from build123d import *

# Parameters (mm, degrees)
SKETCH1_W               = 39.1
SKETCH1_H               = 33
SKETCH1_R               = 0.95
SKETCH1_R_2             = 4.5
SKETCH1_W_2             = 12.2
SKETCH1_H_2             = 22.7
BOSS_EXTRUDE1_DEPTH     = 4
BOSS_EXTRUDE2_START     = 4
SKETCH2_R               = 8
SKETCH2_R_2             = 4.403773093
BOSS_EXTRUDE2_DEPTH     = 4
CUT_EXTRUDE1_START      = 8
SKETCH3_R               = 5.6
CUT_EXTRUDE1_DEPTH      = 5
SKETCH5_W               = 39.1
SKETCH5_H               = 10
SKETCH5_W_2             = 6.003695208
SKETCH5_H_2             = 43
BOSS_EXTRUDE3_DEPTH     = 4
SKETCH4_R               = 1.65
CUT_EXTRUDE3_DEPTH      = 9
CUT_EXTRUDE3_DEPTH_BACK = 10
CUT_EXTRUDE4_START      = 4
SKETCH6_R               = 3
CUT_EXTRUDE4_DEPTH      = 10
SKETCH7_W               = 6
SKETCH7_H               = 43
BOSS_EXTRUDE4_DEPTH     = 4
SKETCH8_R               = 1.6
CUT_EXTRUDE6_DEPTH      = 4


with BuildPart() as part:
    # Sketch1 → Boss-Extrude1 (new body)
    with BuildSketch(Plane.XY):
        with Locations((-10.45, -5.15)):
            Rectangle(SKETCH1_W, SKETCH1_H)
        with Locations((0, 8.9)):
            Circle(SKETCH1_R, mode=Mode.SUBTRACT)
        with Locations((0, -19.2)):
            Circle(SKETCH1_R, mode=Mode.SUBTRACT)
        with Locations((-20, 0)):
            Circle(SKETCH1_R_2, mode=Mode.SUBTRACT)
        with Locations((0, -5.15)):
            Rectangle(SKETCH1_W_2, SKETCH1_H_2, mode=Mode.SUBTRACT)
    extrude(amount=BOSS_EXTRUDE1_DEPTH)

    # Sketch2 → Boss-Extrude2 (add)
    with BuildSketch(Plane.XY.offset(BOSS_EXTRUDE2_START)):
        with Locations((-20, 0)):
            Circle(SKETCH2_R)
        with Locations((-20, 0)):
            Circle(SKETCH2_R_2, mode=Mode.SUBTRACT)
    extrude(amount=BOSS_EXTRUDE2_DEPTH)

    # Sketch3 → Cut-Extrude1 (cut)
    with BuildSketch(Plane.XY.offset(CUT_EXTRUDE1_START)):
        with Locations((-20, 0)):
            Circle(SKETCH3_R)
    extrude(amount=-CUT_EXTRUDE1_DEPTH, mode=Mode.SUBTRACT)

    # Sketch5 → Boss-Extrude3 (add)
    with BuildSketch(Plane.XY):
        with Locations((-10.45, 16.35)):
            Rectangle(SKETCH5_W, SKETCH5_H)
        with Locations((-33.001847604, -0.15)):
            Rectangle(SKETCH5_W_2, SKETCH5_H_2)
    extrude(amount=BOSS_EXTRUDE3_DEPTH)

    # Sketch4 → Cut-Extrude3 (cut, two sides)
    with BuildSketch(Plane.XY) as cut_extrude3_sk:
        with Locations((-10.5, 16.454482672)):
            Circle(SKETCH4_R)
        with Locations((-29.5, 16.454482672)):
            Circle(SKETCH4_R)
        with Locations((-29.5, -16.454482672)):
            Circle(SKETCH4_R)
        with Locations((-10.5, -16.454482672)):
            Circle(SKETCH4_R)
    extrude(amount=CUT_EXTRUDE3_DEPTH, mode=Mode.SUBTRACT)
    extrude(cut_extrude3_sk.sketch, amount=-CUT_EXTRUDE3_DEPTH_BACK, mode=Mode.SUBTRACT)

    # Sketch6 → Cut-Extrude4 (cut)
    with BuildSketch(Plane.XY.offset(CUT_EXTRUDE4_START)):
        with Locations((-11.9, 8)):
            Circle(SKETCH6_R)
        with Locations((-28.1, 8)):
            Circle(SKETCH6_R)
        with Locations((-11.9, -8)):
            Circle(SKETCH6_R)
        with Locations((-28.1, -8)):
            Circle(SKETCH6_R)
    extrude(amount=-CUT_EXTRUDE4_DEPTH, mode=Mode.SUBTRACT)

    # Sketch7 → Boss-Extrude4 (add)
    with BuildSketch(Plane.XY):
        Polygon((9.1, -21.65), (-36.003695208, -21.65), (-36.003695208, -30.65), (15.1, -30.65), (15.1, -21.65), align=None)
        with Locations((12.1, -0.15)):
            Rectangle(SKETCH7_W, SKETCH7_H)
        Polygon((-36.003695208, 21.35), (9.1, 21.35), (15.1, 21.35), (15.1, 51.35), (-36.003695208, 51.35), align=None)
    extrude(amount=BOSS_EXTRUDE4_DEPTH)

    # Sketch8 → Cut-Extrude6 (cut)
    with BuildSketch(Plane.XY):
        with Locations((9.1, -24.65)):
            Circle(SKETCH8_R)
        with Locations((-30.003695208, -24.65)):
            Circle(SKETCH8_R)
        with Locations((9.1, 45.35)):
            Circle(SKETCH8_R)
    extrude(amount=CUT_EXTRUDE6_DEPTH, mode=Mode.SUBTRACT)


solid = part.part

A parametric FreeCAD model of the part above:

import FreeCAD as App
import Part
import Sketcher
from FreeCAD import Vector

doc = App.newDocument("Part")
body = doc.addObject("PartDesign::Body", "Body")

sketch1 = doc.addObject("Sketcher::SketchObject", "Sketch")
body.addObject(sketch1)
sketch1.AttachmentSupport = (doc.XY_Plane, [""])
sketch1.MapMode = "FlatFace"
sketch1.addGeometry([
    Part.LineSegment(Vector(-30, 11.3, 0), Vector(-30, -21.6, 0)),
    Part.LineSegment(Vector(-30, -21.6, 0), Vector(9.1, -21.6, 0)),
    Part.LineSegment(Vector(9.1, -21.6, 0), Vector(9.1, 11.3, 0)),
    Part.LineSegment(Vector(9.1, 11.3, 0), Vector(-30, 11.3, 0)),
    Part.Circle(Vector(0, -19.2, 0), Vector(0, 0, 1), 0.9),
    Part.LineSegment(Vector(6.1, -16.5, 0), Vector(-6.1, -16.5, 0)),
    Part.LineSegment(Vector(-6.1, -16.5, 0), Vector(-6.1, 6.2, 0)),
    Part.LineSegment(Vector(-6.1, 6.2, 0), Vector(6.1, 6.2, 0)),
    Part.LineSegment(Vector(6.1, 6.2, 0), Vector(6.1, -16.5, 0)),
    Part.Circle(Vector(-20, 0, 0), Vector(0, 0, 1), 4.5),
    Part.Circle(Vector(0, 8.9, 0), Vector(0, 0, 1), 0.9),
], False)
sketch1.addConstraint([
    Sketcher.Constraint("Coincident", 0, 2, 1, 1),
    Sketcher.Constraint("Coincident", 1, 2, 2, 1),
    Sketcher.Constraint("Coincident", 2, 2, 3, 1),
    Sketcher.Constraint("Coincident", 3, 2, 0, 1),
    Sketcher.Constraint("Coincident", 5, 2, 6, 1),
    Sketcher.Constraint("Coincident", 6, 2, 7, 1),
    Sketcher.Constraint("Coincident", 7, 2, 8, 1),
    Sketcher.Constraint("Coincident", 8, 2, 5, 1),
    Sketcher.Constraint("Vertical", 0),
    Sketcher.Constraint("Horizontal", 1),
    Sketcher.Constraint("Vertical", 2),
    Sketcher.Constraint("Horizontal", 3),
    Sketcher.Constraint("Horizontal", 5),
    Sketcher.Constraint("Vertical", 6),
    Sketcher.Constraint("Horizontal", 7),
    Sketcher.Constraint("Vertical", 8),
    Sketcher.Constraint("Equal", 4, 10),
    Sketcher.Constraint("PointOnObject", 4, 3, -2),
    Sketcher.Constraint("PointOnObject", 9, 3, -1),
    Sketcher.Constraint("PointOnObject", 10, 3, -2),
    Sketcher.Constraint("Diameter", 9, 9.0),
    Sketcher.Constraint("Diameter", 4, 1.9),
    Sketcher.Constraint("DistanceY", 0, 2, 0, 1, 33.0),
    Sketcher.Constraint("DistanceX", 1, 1, 1, 2, 39.1),
    Sketcher.Constraint("DistanceX", 5, 2, 5, 1, 12.2),
    Sketcher.Constraint("DistanceY", 6, 1, 6, 2, 22.7),
    Sketcher.Constraint("DistanceX", 9, 3, -1, 1, 20.0),
    Sketcher.Constraint("DistanceX", 0, 2, -1, 1, 30.0),
    Sketcher.Constraint("DistanceX", 7, 2, 2, 2, 3.0),
    Sketcher.Constraint("DistanceY", 4, 3, -1, 1, 19.2),
    Sketcher.Constraint("DistanceY", -1, 1, 10, 3, 8.9),
    Sketcher.Constraint("DistanceY", 5, 2, -1, 1, 16.5),
    Sketcher.Constraint("DistanceY", 0, 2, -1, 1, 21.65),
])
pad1 = doc.addObject("PartDesign::Pad", "Pad")
body.addObject(pad1)
pad1.Profile = sketch1
pad1.Length = 4

sketch2 = doc.addObject("Sketcher::SketchObject", "Sketch001")
body.addObject(sketch2)
sketch2.AttachmentSupport = (doc.XY_Plane, [""])
sketch2.MapMode = "FlatFace"
sketch2.AttachmentOffset = App.Placement(Vector(0, 0, 4), App.Rotation())
sketch2.addGeometry([
    Part.Circle(Vector(-20, 0, 0), Vector(0, 0, 1), 8),
    Part.Circle(Vector(-20, 0, 0), Vector(0, 0, 1), 4.4),
], False)
sketch2.addConstraint([
    Sketcher.Constraint("Coincident", 1, 3, 0, 3),
    Sketcher.Constraint("PointOnObject", 0, 3, -1),
    Sketcher.Constraint("Diameter", 0, 16.0),
    Sketcher.Constraint("DistanceX", 0, 3, -1, 1, 20.0),
    Sketcher.Constraint("Diameter", 1, 8.807546),
])
pad2 = doc.addObject("PartDesign::Pad", "Pad001")
body.addObject(pad2)
pad2.Profile = sketch2
pad2.Length = 4

sketch3 = doc.addObject("Sketcher::SketchObject", "Sketch002")
body.addObject(sketch3)
sketch3.AttachmentSupport = (doc.XY_Plane, [""])
sketch3.MapMode = "FlatFace"
sketch3.AttachmentOffset = App.Placement(Vector(0, 0, 8), App.Rotation())
sketch3.addGeometry(Part.Circle(Vector(-20, 0, 0), Vector(0, 0, 1), 6), False)
sketch3.addConstraint([
    Sketcher.Constraint("PointOnObject", 0, 3, -1),
    Sketcher.Constraint("Diameter", 0, 11.2),
    Sketcher.Constraint("DistanceX", 0, 3, -1, 1, 20.0),
])
pocket1 = doc.addObject("PartDesign::Pocket", "Pocket")
body.addObject(pocket1)
pocket1.Profile = sketch3
pocket1.Length = 5

sketch4 = doc.addObject("Sketcher::SketchObject", "Sketch003")
body.addObject(sketch4)
sketch4.AttachmentSupport = (doc.XY_Plane, [""])
sketch4.MapMode = "FlatFace"
sketch4.addGeometry([
    Part.LineSegment(Vector(-30, 11, 0), Vector(9, 11, 0)),
    Part.LineSegment(Vector(9, 11, 0), Vector(9, 21, 0)),
    Part.LineSegment(Vector(9, 21, 0), Vector(-36, 21, 0)),
    Part.LineSegment(Vector(-36, 21, 0), Vector(-36, -22, 0)),
    Part.LineSegment(Vector(-36, -22, 0), Vector(-30, -22, 0)),
    Part.LineSegment(Vector(-30, -22, 0), Vector(-30, 11, 0)),
], False)
sketch4.addConstraint([
    Sketcher.Constraint("Coincident", 0, 2, 1, 1),
    Sketcher.Constraint("Coincident", 1, 2, 2, 1),
    Sketcher.Constraint("Coincident", 2, 2, 3, 1),
    Sketcher.Constraint("Coincident", 3, 2, 4, 1),
    Sketcher.Constraint("Coincident", 4, 2, 5, 1),
    Sketcher.Constraint("Coincident", 5, 2, 0, 1),
    Sketcher.Constraint("Horizontal", 0),
    Sketcher.Constraint("Vertical", 1),
    Sketcher.Constraint("Horizontal", 2),
    Sketcher.Constraint("Vertical", 3),
    Sketcher.Constraint("Horizontal", 4),
    Sketcher.Constraint("Vertical", 5),
    Sketcher.Constraint("DistanceY", 1, 1, 1, 2, 10.0),
    Sketcher.Constraint("DistanceY", 3, 2, 3, 1, 43.0),
    Sketcher.Constraint("DistanceX", 0, 1, 0, 2, 39.1),
    Sketcher.Constraint("DistanceX", 4, 2, -1, 1, 30.0),
    Sketcher.Constraint("DistanceY", -1, 1, 0, 2, 11.35),
    Sketcher.Constraint("DistanceX", 2, 2, 2, 1, 45.103695),
])
pad3 = doc.addObject("PartDesign::Pad", "Pad002")
body.addObject(pad3)
pad3.Profile = sketch4
pad3.Length = 4

sketch5 = doc.addObject("Sketcher::SketchObject", "Sketch004")
body.addObject(sketch5)
sketch5.AttachmentSupport = (doc.XY_Plane, [""])
sketch5.MapMode = "FlatFace"
sketch5.addGeometry([
    Part.Circle(Vector(-10.5, 16.5, 0), Vector(0, 0, 1), 1.6),
    Part.Circle(Vector(-29.5, 16.5, 0), Vector(0, 0, 1), 1.6),
    Part.Circle(Vector(-29.5, -16.5, 0), Vector(0, 0, 1), 1.6),
    Part.Circle(Vector(-10.5, -16.5, 0), Vector(0, 0, 1), 1.6),
], False)
sketch5.addConstraint([
    Sketcher.Constraint("Equal", 0, 1),
    Sketcher.Constraint("Equal", 1, 2),
    Sketcher.Constraint("Equal", 2, 3),
    Sketcher.Constraint("Symmetric", 1, 3, 2, 3, -1),
    Sketcher.Constraint("Symmetric", 0, 3, 3, 3, -1),
    Sketcher.Constraint("Horizontal", 0, 3, 1, 3),
    Sketcher.Constraint("Diameter", 0, 3.3),
    Sketcher.Constraint("DistanceX", 1, 3, 0, 3, 19.0),
    Sketcher.Constraint("DistanceX", 0, 3, -1, 1, 10.5),
    Sketcher.Constraint("DistanceY", -1, 1, 0, 3, 16.454483),
])
pocket2 = doc.addObject("PartDesign::Pocket", "Pocket001")
body.addObject(pocket2)
pocket2.Profile = sketch5
pocket2.Type = "ThroughAll"
pocket2.Midplane = True

sketch6 = doc.addObject("Sketcher::SketchObject", "Sketch005")
body.addObject(sketch6)
sketch6.AttachmentSupport = (doc.XY_Plane, [""])
sketch6.MapMode = "FlatFace"
sketch6.AttachmentOffset = App.Placement(Vector(0, 0, 4), App.Rotation())
sketch6.addGeometry([
    Part.Circle(Vector(-11.9, 8, 0), Vector(0, 0, 1), 3),
    Part.Circle(Vector(-28.1, 8, 0), Vector(0, 0, 1), 3),
    Part.Circle(Vector(-11.9, -8, 0), Vector(0, 0, 1), 3),
    Part.Circle(Vector(-28.1, -8, 0), Vector(0, 0, 1), 3),
], False)
sketch6.addConstraint([
    Sketcher.Constraint("Equal", 0, 1),
    Sketcher.Constraint("Equal", 1, 2),
    Sketcher.Constraint("Equal", 2, 3),
    Sketcher.Constraint("Symmetric", 0, 3, 2, 3, -1),
    Sketcher.Constraint("Symmetric", 1, 3, 3, 3, -1),
    Sketcher.Constraint("Horizontal", 0, 3, 1, 3),
    Sketcher.Constraint("Diameter", 0, 6.0),
    Sketcher.Constraint("DistanceY", -1, 1, 0, 3, 8.0),
    Sketcher.Constraint("DistanceX", 0, 3, -1, 1, 11.9),
    Sketcher.Constraint("DistanceX", 1, 3, -1, 1, 28.1),
])
pocket3 = doc.addObject("PartDesign::Pocket", "Pocket002")
body.addObject(pocket3)
pocket3.Profile = sketch6
pocket3.Length = 10

sketch7 = doc.addObject("Sketcher::SketchObject", "Sketch006")
body.addObject(sketch7)
sketch7.AttachmentSupport = (doc.XY_Plane, [""])
sketch7.MapMode = "FlatFace"
sketch7.addGeometry([
    Part.LineSegment(Vector(-36, -22, 0), Vector(-36, -31, 0)),
    Part.LineSegment(Vector(-36, -31, 0), Vector(15, -31, 0)),
    Part.LineSegment(Vector(15, -31, 0), Vector(15, 51, 0)),
    Part.LineSegment(Vector(15, 51, 0), Vector(-36, 51, 0)),
    Part.LineSegment(Vector(-36, 51, 0), Vector(-36, 21, 0)),
    Part.LineSegment(Vector(-36, 21, 0), Vector(9, 21, 0)),
    Part.LineSegment(Vector(9, 21, 0), Vector(9, -22, 0)),
    Part.LineSegment(Vector(9, -22, 0), Vector(-36, -22, 0)),
], False)
sketch7.addConstraint([
    Sketcher.Constraint("Coincident", 0, 2, 1, 1),
    Sketcher.Constraint("Coincident", 1, 2, 2, 1),
    Sketcher.Constraint("Coincident", 2, 2, 3, 1),
    Sketcher.Constraint("Coincident", 3, 2, 4, 1),
    Sketcher.Constraint("Coincident", 4, 2, 5, 1),
    Sketcher.Constraint("Coincident", 5, 2, 6, 1),
    Sketcher.Constraint("Coincident", 6, 2, 7, 1),
    Sketcher.Constraint("Coincident", 7, 2, 0, 1),
    Sketcher.Constraint("Vertical", 0),
    Sketcher.Constraint("Horizontal", 1),
    Sketcher.Constraint("Vertical", 2),
    Sketcher.Constraint("Horizontal", 3),
    Sketcher.Constraint("Vertical", 4),
    Sketcher.Constraint("Horizontal", 5),
    Sketcher.Constraint("Vertical", 6),
    Sketcher.Constraint("Horizontal", 7),
    Sketcher.Constraint("Vertical", 0, 2, 3, 2),
    Sketcher.Constraint("DistanceY", 0, 2, 0, 1, 9.0),
    Sketcher.Constraint("DistanceY", 2, 1, 2, 2, 82.0),
    Sketcher.Constraint("DistanceY", 4, 2, 4, 1, 30.0),
    Sketcher.Constraint("DistanceX", 5, 2, 2, 2, 6.0),
    Sketcher.Constraint("DistanceX", -1, 1, 1, 2, 15.1),
    Sketcher.Constraint("DistanceY", 0, 2, -1, 1, 30.65),
    Sketcher.Constraint("DistanceX", 1, 1, 1, 2, 51.103695),
])
pad4 = doc.addObject("PartDesign::Pad", "Pad003")
body.addObject(pad4)
pad4.Profile = sketch7
pad4.Length = 4

sketch8 = doc.addObject("Sketcher::SketchObject", "Sketch007")
body.addObject(sketch8)
sketch8.AttachmentSupport = (doc.XY_Plane, [""])
sketch8.MapMode = "FlatFace"
sketch8.addGeometry([
    Part.Circle(Vector(9.1, -24.6, 0), Vector(0, 0, 1), 1.6),
    Part.Circle(Vector(-30, -24.6, 0), Vector(0, 0, 1), 1.6),
    Part.Circle(Vector(9.1, 45.4, 0), Vector(0, 0, 1), 1.6),
], False)
sketch8.addConstraint([
    Sketcher.Constraint("Equal", 0, 1),
    Sketcher.Constraint("Equal", 1, 2),
    Sketcher.Constraint("Horizontal", 0, 3, 1, 3),
    Sketcher.Constraint("Vertical", 0, 3, 2, 3),
    Sketcher.Constraint("Diameter", 0, 3.2),
    Sketcher.Constraint("DistanceY", 0, 3, 2, 3, 70.0),
    Sketcher.Constraint("DistanceX", -1, 1, 0, 3, 9.1),
    Sketcher.Constraint("DistanceY", 0, 3, -1, 1, 24.65),
    Sketcher.Constraint("DistanceX", 1, 3, -1, 1, 30.003695),
])
pocket4 = doc.addObject("PartDesign::Pocket", "Pocket003")
body.addObject(pocket4)
pocket4.Profile = sketch8
pocket4.Length = 4
pocket4.Reversed = True

doc.recompute()
